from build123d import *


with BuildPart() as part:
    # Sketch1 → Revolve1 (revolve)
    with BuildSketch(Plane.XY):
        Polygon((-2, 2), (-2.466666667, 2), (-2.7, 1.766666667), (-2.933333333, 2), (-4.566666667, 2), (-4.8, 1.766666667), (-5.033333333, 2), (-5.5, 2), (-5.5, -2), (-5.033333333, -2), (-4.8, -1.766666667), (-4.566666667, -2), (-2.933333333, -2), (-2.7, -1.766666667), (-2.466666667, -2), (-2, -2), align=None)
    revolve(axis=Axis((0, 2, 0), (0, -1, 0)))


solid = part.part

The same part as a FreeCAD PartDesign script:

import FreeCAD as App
import Part
import Sketcher

V = App.Vector
Q = App.Units.Quantity


def add_polygon(sketch, points):
    """Adds a closed chain of lines whose ends are joined by coincident constraints."""
    first, n = sketch.GeometryCount, len(points)
    for a, b in zip(points, points[1:] + points[:1]):
        sketch.addGeometry(Part.LineSegment(App.Vector(*a, 0), App.Vector(*b, 0)), False)
    for i in range(n):
        sketch.addConstraint(Sketcher.Constraint("Coincident", first + i, 2, first + (i + 1) % n, 1))

doc = App.newDocument("Part")
body = doc.addObject("PartDesign::Body", "Body")

# Sketch on XY plane
sketch1 = body.newObject("Sketcher::SketchObject", "Sketch")
sketch1.AttachmentSupport = (doc.getObject("XY_Plane"), [""])
sketch1.MapMode = "FlatFace"
add_polygon(sketch1, [(-2, 2), (-2.466667, 2), (-2.7, 1.766667), (-2.933333, 2), (-4.566667, 2), (-4.8, 1.766667), (-5.033333, 2), (-5.5, 2), (-5.5, -2), (-5.033333, -2), (-4.8, -1.766667), (-4.566667, -2), (-2.933333, -2), (-2.7, -1.766667), (-2.466667, -2), (-2, -2)])  # lines 0-15
sketch1.addConstraint([
    Sketcher.Constraint("Horizontal", 0),
    Sketcher.Constraint("Horizontal", 3),
    Sketcher.Constraint("Horizontal", 6),
    Sketcher.Constraint("Vertical", 7),
    Sketcher.Constraint("Horizontal", 8),
    Sketcher.Constraint("Horizontal", 11),
    Sketcher.Constraint("Horizontal", 14),
    Sketcher.Constraint("Vertical", 15),
    Sketcher.Constraint("Symmetric", 5, 2, 8, 2, -1),
    Sketcher.Constraint("Symmetric", 4, 2, 9, 2, -1),
    Sketcher.Constraint("Symmetric", 3, 2, 10, 2, -1),
    Sketcher.Constraint("Symmetric", 1, 2, 12, 2, -1),
    Sketcher.Constraint("Symmetric", 0, 2, 13, 2, -1),
    Sketcher.Constraint("Perpendicular", 1, 2),
    Sketcher.Constraint("Perpendicular", 2, 4),
    Sketcher.Constraint("Perpendicular", 4, 5),
    Sketcher.Constraint("Perpendicular", 5, 9),
    Sketcher.Constraint("Perpendicular", 10, 12),
    Sketcher.Constraint("Horizontal", 0, 2, 2, 2),
    Sketcher.Constraint("Horizontal", 1, 2, 4, 2),
    Sketcher.Constraint("Horizontal", 3, 2, 5, 2),
    Sketcher.Constraint("Equal", 0, 6),
    Sketcher.Constraint("DistanceY", 7, 2, 7, 1, Q("4 mm")),
    Sketcher.Constraint("DistanceX", 14, 2, -1, 1, Q("2 mm")),
    Sketcher.Constraint("DistanceX", 1, 2, -1, 1, Q("2.7 mm")),
    Sketcher.Constraint("DistanceX", 4, 2, -1, 1, Q("4.8 mm")),
    Sketcher.Constraint("DistanceX", 0, 2, 0, 1, Q("0.466667 mm")),
])
revolution = body.newObject("PartDesign::Revolution", "Revolution")
revolution.Profile = sketch1
revolution.ReferenceAxis = (sketch1, ["V_Axis"])
revolution.Angle = 360

doc.recompute()
